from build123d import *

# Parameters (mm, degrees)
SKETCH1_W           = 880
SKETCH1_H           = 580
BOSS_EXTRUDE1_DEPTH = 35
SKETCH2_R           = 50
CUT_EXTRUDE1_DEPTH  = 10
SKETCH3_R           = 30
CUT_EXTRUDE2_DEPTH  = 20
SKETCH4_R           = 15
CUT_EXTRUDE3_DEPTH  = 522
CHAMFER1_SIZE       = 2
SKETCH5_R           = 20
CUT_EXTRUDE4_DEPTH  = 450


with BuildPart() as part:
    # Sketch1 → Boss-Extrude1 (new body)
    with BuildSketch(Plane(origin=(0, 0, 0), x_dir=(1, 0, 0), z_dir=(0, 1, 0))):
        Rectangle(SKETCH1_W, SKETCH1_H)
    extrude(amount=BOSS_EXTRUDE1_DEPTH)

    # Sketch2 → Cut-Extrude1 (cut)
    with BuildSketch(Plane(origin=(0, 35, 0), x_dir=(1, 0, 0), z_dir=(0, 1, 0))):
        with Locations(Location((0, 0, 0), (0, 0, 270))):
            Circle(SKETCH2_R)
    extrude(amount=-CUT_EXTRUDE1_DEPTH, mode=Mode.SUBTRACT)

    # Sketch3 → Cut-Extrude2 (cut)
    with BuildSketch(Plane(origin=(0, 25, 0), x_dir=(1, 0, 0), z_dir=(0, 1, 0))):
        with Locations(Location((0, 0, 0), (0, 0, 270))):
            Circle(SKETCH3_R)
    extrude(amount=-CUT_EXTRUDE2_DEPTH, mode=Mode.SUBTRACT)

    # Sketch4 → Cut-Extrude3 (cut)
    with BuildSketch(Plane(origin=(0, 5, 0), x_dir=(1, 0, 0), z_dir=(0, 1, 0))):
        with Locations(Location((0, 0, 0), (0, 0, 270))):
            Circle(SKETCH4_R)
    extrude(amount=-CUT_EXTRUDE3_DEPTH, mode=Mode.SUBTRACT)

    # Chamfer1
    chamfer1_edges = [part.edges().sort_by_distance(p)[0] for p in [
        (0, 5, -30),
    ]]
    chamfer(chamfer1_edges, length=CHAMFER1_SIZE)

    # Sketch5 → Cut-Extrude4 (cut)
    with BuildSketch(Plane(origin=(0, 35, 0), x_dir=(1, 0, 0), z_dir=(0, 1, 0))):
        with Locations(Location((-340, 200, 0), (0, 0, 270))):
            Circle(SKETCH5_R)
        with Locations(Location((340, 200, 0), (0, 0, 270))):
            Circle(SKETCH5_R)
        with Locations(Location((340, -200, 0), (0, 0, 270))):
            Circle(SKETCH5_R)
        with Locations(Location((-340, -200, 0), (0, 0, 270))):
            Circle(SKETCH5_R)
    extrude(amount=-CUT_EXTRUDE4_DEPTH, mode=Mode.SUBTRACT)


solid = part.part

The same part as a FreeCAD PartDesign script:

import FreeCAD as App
import Part
import Sketcher

V = App.Vector
Q = App.Units.Quantity


def edges_at(feature, points):
    """Names of the edges that pass closest to the given points."""
    edges = feature.Shape.Edges
    near = lambda p: min(range(len(edges)), key=lambda i: edges[i].distToShape(Part.Vertex(*p))[0])
    return sorted({f"Edge{near(p) + 1}" for p in points})


def add_polygon(sketch, points):
    """Adds a closed chain of lines whose ends are joined by coincident constraints."""
    first, n = sketch.GeometryCount, len(points)
    for a, b in zip(points, points[1:] + points[:1]):
        sketch.addGeometry(Part.LineSegment(App.Vector(*a, 0), App.Vector(*b, 0)), False)
    for i in range(n):
        sketch.addConstraint(Sketcher.Constraint("Coincident", first + i, 2, first + (i + 1) % n, 1))

doc = App.newDocument("Part")
body = doc.addObject("PartDesign::Body", "Body")

sketch1 = body.newObject("Sketcher::SketchObject", "Sketch")
sketch1.AttachmentSupport = (doc.getObject("XZ_Plane"), [""])
sketch1.MapMode = "FlatFace"
add_polygon(sketch1, [(-440, -290), (-440, 290), (440, 290), (440, -290)])
sketch1.addConstraint([
    Sketcher.Constraint("Vertical", 0),
    Sketcher.Constraint("Horizontal", 1),
    Sketcher.Constraint("Vertical", 2),
    Sketcher.Constraint("Horizontal", 3),
    Sketcher.Constraint("Symmetric", 0, 2, 2, 2, -1, 1),
    Sketcher.Constraint("DistanceX", 1, 1, 1, 2, Q("880 mm")),
    Sketcher.Constraint("DistanceY", 0, 1, 0, 2, Q("580 mm")),
])
pad1 = body.newObject("PartDesign::Pad", "Pad")
pad1.Profile = sketch1
pad1.Length = 35
pad1.Reversed = True

sketch2 = body.newObject("Sketcher::SketchObject", "Sketch001")
sketch2.AttachmentSupport = (doc.getObject("XZ_Plane"), [""])
sketch2.MapMode = "FlatFace"
sketch2.AttachmentOffset = App.Placement(V(0, 0, -35), App.Rotation())
sketch2.addGeometry(Part.Circle(V(0, 0, 0), V(0, 0, 1), 50), False)
sketch2.addConstraint([
    Sketcher.Constraint("Coincident", 0, 3, -1, 1),
    Sketcher.Constraint("Diameter", 0, Q("100 mm")),
])
pocket1 = body.newObject("PartDesign::Pocket", "Pocket")
pocket1.Profile = sketch2
pocket1.Length = 10
pocket1.Reversed = True

sketch3 = body.newObject("Sketcher::SketchObject", "Sketch002")
sketch3.AttachmentSupport = (doc.getObject("XZ_Plane"), [""])
sketch3.MapMode = "FlatFace"
sketch3.AttachmentOffset = App.Placement(V(0, 0, -25), App.Rotation())
sketch3.addGeometry(Part.Circle(V(0, 0, 0), V(0, 0, 1), 30), False)
sketch3.addConstraint([
    Sketcher.Constraint("Coincident", 0, 3, -1, 1),
    Sketcher.Constraint("Diameter", 0, Q("60 mm")),
])
pocket2 = body.newObject("PartDesign::Pocket", "Pocket001")
pocket2.Profile = sketch3
pocket2.Length = 20
pocket2.Reversed = True

sketch4 = body.newObject("Sketcher::SketchObject", "Sketch003")
sketch4.AttachmentSupport = (doc.getObject("XZ_Plane"), [""])
sketch4.MapMode = "FlatFace"
sketch4.AttachmentOffset = App.Placement(V(0, 0, -5), App.Rotation())
sketch4.addGeometry(Part.Circle(V(0, 0, 0), V(0, 0, 1), 15), False)
sketch4.addConstraint([
    Sketcher.Constraint("Coincident", 0, 3, -1, 1),
    Sketcher.Constraint("Diameter", 0, Q("30 mm")),
])
pocket3 = body.newObject("PartDesign::Pocket", "Pocket002")
pocket3.Profile = sketch4
pocket3.Length = 522
pocket3.Reversed = True
doc.recompute()

chamfer = body.newObject("PartDesign::Chamfer", "Chamfer")
chamfer.Base = (pocket3, edges_at(pocket3, [(0, 5, -30)]))
chamfer.Size = 2

sketch5 = body.newObject("Sketcher::SketchObject", "Sketch004")
sketch5.AttachmentSupport = (doc.getObject("XZ_Plane"), [""])
sketch5.MapMode = "FlatFace"
sketch5.AttachmentOffset = App.Placement(V(0, 0, -35), App.Rotation())
sketch5.addGeometry([
    Part.Circle(V(-340, -200, 0), V(0, 0, 1), 20),
    Part.Circle(V(340, -200, 0), V(0, 0, 1), 20),
    Part.Circle(V(340, 200, 0), V(0, 0, 1), 20),
    Part.Circle(V(-340, 200, 0), V(0, 0, 1), 20),
], False)
sketch5.addConstraint([
    Sketcher.Constraint("Equal", 0, 1),
    Sketcher.Constraint("Equal", 1, 2),
    Sketcher.Constraint("Equal", 2, 3),
    Sketcher.Constraint("Symmetric", 0, 3, 2, 3, -1, 1),
    Sketcher.Constraint("Symmetric", 1, 3, 3, 3, -1, 1),
    Sketcher.Constraint("Symmetric", 0, 3, 1, 3, -2),
    Sketcher.Constraint("Diameter", 0, Q("40 mm")),
    Sketcher.Constraint("DistanceX", 0, 3, -1, 1, Q("340 mm")),
    Sketcher.Constraint("DistanceY", 0, 3, -1, 1, Q("200 mm")),
])
pocket4 = body.newObject("PartDesign::Pocket", "Pocket003")
pocket4.Profile = sketch5
pocket4.Length = 450
pocket4.Reversed = True

doc.recompute()
